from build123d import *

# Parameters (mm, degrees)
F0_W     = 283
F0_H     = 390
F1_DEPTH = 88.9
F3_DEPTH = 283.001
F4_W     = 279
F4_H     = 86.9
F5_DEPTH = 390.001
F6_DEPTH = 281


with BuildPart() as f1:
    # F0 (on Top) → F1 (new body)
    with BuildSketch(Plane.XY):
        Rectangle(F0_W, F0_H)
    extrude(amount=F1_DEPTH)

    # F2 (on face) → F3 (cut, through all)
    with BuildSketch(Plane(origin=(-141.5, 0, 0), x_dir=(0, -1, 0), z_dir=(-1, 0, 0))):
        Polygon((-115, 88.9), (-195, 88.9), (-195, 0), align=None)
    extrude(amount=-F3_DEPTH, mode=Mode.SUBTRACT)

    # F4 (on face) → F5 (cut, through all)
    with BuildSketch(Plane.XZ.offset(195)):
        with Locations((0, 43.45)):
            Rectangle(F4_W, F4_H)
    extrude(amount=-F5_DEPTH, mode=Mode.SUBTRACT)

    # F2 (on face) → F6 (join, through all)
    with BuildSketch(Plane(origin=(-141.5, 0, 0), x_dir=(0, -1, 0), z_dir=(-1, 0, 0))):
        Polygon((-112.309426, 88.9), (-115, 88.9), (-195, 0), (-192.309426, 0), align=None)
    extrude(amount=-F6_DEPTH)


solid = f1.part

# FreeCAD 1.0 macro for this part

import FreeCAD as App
import Part
import Sketcher
from FreeCAD import Vector
Q = App.Units.Quantity


def add_polygon(sketch, points):
    """Adds a closed chain of lines whose ends are joined by coincident constraints."""
    first, n = sketch.GeometryCount, len(points)
    for a, b in zip(points, points[1:] + points[:1]):
        sketch.addGeometry(Part.LineSegment(App.Vector(*a, 0), App.Vector(*b, 0)), False)
    for i in range(n):
        sketch.addConstraint(Sketcher.Constraint("Coincident", first + i, 2, first + (i + 1) % n, 1))

doc = App.newDocument("Part")
body = doc.addObject("PartDesign::Body", "Body")

# Sketch on XY plane
sketch1 = body.newObject("Sketcher::SketchObject", "Sketch")
sketch1.AttachmentSupport = (doc.getObject("XY_Plane"), [""])
sketch1.MapMode = "FlatFace"
add_polygon(sketch1, [(-142, 195), (-142, -195), (142, -195), (142, 195)])  # lines 0-3
sketch1.addConstraint([
    Sketcher.Constraint("Vertical", 0),
    Sketcher.Constraint("Horizontal", 1),
    Sketcher.Constraint("Vertical", 2),
    Sketcher.Constraint("Horizontal", 3),
    Sketcher.Constraint("Symmetric", 0, 2, 2, 2, -1, 1),
    Sketcher.Constraint("DistanceX", 1, 1, 1, 2, Q("283 mm")),
    Sketcher.Constraint("DistanceY", 0, 2, 0, 1, Q("390 mm")),
])
pad1 = body.newObject("PartDesign::Pad", "Pad")
pad1.Profile = sketch1
pad1.Length = 88.9

# Sketch on YZ plane
sketch2 = body.newObject("Sketcher::SketchObject", "Sketch001")
sketch2.AttachmentSupport = (doc.getObject("YZ_Plane"), [""])
sketch2.MapMode = "FlatFace"
sketch2.AttachmentOffset = App.Placement(Vector(0, 0, -141.5), App.Rotation())
add_polygon(sketch2, [(115, 89), (195, 89), (195, 0)])  # lines 0-2
sketch2.addConstraint([
    Sketcher.Constraint("Horizontal", 0),
    Sketcher.Constraint("Vertical", 1),
    Sketcher.Constraint("PointOnObject", 1, 2, -1),
    Sketcher.Constraint("DistanceX", 0, 1, 0, 2, Q("80 mm")),
    Sketcher.Constraint("DistanceY", 1, 2, 1, 1, Q("88.9 mm")),
    Sketcher.Constraint("DistanceX", -1, 1, 0, 2, Q("195 mm")),
])
pocket1 = body.newObject("PartDesign::Pocket", "Pocket")
pocket1.Profile = sketch2
pocket1.Type = "ThroughAll"
pocket1.Reversed = True

# Sketch on XZ plane
sketch3 = body.newObject("Sketcher::SketchObject", "Sketch002")
sketch3.AttachmentSupport = (doc.getObject("XZ_Plane"), [""])
sketch3.MapMode = "FlatFace"
sketch3.AttachmentOffset = App.Placement(Vector(0, 0, 195), App.Rotation())
add_polygon(sketch3, [(-140, 87), (-140, 0), (140, 0), (140, 87)])  # lines 0-3
sketch3.addConstraint([
    Sketcher.Constraint("Vertical", 0),
    Sketcher.Constraint("Horizontal", 1),
    Sketcher.Constraint("Vertical", 2),
    Sketcher.Constraint("Horizontal", 3),
    Sketcher.Constraint("Symmetric", 0, 2, 1, 2, -1, 1),
    Sketcher.Constraint("DistanceX", 1, 1, 1, 2, Q("279 mm")),
    Sketcher.Constraint("DistanceY", 0, 2, 0, 1, Q("86.9 mm")),
])
pocket2 = body.newObject("PartDesign::Pocket", "Pocket001")
pocket2.Profile = sketch3
pocket2.Type = "ThroughAll"

# Sketch on YZ plane
sketch4 = body.newObject("Sketcher::SketchObject", "Sketch003")
sketch4.AttachmentSupport = (doc.getObject("YZ_Plane"), [""])
sketch4.MapMode = "FlatFace"
sketch4.AttachmentOffset = App.Placement(Vector(0, 0, -141.5), App.Rotation())
add_polygon(sketch4, [(112.3, 88.9), (115, 88.9), (195, 0), (192.3, 0)])  # lines 0-3
sketch4.addConstraint([
    Sketcher.Constraint("Horizontal", 0),
    Sketcher.Constraint("Horizontal", 2),
    Sketcher.Constraint("PointOnObject", 1, 2, -1),
    Sketcher.Constraint("Parallel", 1, 3),
    Sketcher.Constraint("DistanceX", -1, 1, 0, 2, Q("115 mm")),
    Sketcher.Constraint("DistanceX", -1, 1, 1, 2, Q("195 mm")),
    Sketcher.Constraint("DistanceY", -1, 1, 0, 2, Q("88.9 mm")),
    Sketcher.Constraint("DistanceX", 0, 1, 0, 2, Q("2.690574 mm")),
])
pad2 = body.newObject("PartDesign::Pad", "Pad001")
pad2.Profile = sketch4
pad2.Type = "UpToLast"

doc.recompute()
